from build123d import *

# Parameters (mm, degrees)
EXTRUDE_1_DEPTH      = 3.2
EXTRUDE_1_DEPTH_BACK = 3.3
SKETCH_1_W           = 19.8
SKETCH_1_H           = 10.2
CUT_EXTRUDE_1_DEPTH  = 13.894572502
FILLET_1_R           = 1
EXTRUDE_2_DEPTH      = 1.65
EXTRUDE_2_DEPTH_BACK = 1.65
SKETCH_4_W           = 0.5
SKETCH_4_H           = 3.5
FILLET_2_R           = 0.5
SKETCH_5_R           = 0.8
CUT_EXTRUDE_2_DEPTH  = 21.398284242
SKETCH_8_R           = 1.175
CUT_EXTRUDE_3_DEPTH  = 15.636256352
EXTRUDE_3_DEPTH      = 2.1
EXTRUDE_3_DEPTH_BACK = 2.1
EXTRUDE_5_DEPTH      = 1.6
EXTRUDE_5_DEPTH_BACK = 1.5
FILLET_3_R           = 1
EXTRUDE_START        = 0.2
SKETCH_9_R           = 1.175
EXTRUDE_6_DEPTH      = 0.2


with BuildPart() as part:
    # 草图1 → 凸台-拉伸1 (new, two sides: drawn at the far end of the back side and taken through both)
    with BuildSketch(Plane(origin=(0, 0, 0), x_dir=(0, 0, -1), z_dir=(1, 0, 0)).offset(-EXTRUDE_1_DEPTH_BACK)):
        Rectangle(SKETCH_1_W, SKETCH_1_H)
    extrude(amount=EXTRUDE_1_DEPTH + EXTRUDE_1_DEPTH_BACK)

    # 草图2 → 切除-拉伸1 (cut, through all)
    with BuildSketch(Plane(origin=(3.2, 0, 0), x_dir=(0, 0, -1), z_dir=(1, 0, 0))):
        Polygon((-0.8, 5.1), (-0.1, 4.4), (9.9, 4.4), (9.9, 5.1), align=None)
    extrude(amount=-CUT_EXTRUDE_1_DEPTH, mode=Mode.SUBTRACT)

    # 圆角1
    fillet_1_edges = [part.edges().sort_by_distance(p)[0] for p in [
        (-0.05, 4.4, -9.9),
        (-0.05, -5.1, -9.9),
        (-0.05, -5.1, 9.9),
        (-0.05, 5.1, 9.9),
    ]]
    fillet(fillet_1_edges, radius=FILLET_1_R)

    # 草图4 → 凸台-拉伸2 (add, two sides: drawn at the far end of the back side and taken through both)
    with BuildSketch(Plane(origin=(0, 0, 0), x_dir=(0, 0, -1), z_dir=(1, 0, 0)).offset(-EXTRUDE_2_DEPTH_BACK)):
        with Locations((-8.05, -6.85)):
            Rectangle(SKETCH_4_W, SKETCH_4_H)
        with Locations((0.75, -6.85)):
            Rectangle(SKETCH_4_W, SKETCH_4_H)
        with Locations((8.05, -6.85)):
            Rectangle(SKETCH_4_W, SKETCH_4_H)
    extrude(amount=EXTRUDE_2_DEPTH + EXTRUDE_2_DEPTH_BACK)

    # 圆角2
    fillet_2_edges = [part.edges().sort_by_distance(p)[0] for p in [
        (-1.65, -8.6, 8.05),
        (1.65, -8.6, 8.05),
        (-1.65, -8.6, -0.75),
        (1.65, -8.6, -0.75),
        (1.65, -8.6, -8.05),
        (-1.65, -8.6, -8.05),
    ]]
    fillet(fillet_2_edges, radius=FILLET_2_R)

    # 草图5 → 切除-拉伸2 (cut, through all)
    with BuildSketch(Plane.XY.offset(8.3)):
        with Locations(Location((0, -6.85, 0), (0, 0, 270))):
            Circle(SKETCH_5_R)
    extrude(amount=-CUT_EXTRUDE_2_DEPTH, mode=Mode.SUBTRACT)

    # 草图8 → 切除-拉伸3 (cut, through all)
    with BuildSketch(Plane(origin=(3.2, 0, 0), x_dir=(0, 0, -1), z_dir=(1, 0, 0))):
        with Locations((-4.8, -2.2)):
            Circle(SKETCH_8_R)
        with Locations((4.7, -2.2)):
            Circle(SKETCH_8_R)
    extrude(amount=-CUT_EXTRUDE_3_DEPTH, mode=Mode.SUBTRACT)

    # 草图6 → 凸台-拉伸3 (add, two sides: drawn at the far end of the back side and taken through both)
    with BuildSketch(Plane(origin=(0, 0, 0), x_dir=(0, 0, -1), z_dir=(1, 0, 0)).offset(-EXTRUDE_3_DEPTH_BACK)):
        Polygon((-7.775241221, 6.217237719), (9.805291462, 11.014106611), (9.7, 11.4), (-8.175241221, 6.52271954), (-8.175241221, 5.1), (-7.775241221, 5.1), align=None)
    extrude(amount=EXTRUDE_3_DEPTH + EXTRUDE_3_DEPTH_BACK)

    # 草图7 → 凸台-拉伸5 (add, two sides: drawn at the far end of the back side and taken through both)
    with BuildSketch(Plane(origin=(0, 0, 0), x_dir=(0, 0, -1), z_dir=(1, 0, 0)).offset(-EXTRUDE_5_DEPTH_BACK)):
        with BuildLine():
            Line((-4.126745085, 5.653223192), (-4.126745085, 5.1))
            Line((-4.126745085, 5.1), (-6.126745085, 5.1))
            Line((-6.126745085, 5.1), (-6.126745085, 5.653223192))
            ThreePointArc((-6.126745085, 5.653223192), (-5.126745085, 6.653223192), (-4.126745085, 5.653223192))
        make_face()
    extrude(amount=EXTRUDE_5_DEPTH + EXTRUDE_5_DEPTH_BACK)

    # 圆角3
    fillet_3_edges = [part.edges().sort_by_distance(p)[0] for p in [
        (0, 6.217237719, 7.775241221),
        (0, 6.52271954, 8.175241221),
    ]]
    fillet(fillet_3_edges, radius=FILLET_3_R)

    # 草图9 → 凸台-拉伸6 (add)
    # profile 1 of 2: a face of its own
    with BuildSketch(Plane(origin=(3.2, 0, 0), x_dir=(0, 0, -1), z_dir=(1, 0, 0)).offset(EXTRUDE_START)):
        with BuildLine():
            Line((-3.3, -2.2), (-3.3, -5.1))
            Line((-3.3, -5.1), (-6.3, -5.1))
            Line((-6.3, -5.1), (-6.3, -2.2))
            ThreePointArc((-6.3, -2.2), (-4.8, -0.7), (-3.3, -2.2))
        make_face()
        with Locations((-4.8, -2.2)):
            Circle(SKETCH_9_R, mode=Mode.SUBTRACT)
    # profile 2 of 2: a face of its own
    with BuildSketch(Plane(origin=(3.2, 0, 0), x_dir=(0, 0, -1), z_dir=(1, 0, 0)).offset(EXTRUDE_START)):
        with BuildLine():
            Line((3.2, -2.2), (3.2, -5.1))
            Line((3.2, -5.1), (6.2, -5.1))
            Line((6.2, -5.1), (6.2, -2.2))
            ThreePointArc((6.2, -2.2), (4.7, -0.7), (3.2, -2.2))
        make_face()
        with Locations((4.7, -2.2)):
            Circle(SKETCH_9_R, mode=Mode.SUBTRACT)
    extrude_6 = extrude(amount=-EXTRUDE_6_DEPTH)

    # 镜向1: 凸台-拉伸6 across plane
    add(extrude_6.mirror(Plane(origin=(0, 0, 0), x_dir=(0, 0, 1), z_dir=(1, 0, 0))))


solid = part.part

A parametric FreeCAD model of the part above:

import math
import FreeCAD as App
import Part
import Sketcher
from FreeCAD import Vector
Q = App.Units.Quantity


def edges_at(feature, points):
    """Names of the edges that pass closest to the given points."""
    edges = feature.Shape.Edges
    near = lambda p: min(range(len(edges)), key=lambda i: edges[i].distToShape(Part.Vertex(*p))[0])
    return sorted({f"Edge{near(p) + 1}" for p in points})


def add_polygon(sketch, points):
    """Adds a closed chain of lines whose ends are joined by coincident constraints."""
    first, n = sketch.GeometryCount, len(points)
    for a, b in zip(points, points[1:] + points[:1]):
        sketch.addGeometry(Part.LineSegment(App.Vector(*a, 0), App.Vector(*b, 0)), False)
    for i in range(n):
        sketch.addConstraint(Sketcher.Constraint("Coincident", first + i, 2, first + (i + 1) % n, 1))

doc = App.newDocument("Part")
body = doc.addObject("PartDesign::Body", "Body")

# Sketch on YZ plane
sketch1 = body.newObject("Sketcher::SketchObject", "Sketch")
sketch1.AttachmentSupport = (doc.getObject("YZ_Plane"), [""])
sketch1.MapMode = "FlatFace"
add_polygon(sketch1, [(5, 10), (-5, 10), (-5, -10), (5, -10)])  # lines 0-3
sketch1.addConstraint([
    Sketcher.Constraint("Horizontal", 0),
    Sketcher.Constraint("Vertical", 1),
    Sketcher.Constraint("Horizontal", 2),
    Sketcher.Constraint("Vertical", 3),
    Sketcher.Constraint("Symmetric", 0, 2, 2, 2, -1, 1),
    Sketcher.Constraint("DistanceX", 0, 2, 0, 1, Q("10.2 mm")),
    Sketcher.Constraint("DistanceY", 1, 2, 1, 1, Q("19.8 mm")),
])
pad1 = body.newObject("PartDesign::Pad", "Pad")
pad1.Profile = sketch1
pad1.Type = "TwoLengths"
pad1.Length = 3.2
pad1.Length2 = 3.3

# Sketch on YZ plane
sketch2 = body.newObject("Sketcher::SketchObject", "Sketch001")
sketch2.AttachmentSupport = (doc.getObject("YZ_Plane"), [""])
sketch2.MapMode = "FlatFace"
sketch2.AttachmentOffset = App.Placement(Vector(0, 0, 3.2), App.Rotation())
add_polygon(sketch2, [(5.1, 0.8), (4.4, 0.1), (4.4, -9.9), (5.1, -9.9)])  # lines 0-3
sketch2.addConstraint([
    Sketcher.Constraint("Vertical", 1),
    Sketcher.Constraint("Horizontal", 2),
    Sketcher.Constraint("Vertical", 3),
    Sketcher.Constraint("DistanceY", 1, 2, 1, 1, Q("10 mm")),
    Sketcher.Constraint("Angle", 0, Q("-135 deg")),
    Sketcher.Constraint("DistanceX", 2, 1, 2, 2, Q("0.7 mm")),
    Sketcher.Constraint("DistanceX", -1, 1, 0, 2, Q("4.4 mm")),
    Sketcher.Constraint("DistanceY", -1, 1, 0, 2, Q("0.1 mm")),
])
pocket1 = body.newObject("PartDesign::Pocket", "Pocket")
pocket1.Profile = sketch2
pocket1.Type = "ThroughAll"
doc.recompute()

fillet = body.newObject("PartDesign::Fillet", "Fillet")
fillet.Base = (pocket1, edges_at(pocket1, [
    (-0.05, 4.4, -9.9),
    (-0.05, -5.1, -9.9),
    (-0.05, -5.1, 9.9),
    (-0.05, 5.1, 9.9),
]))
fillet.Radius = 1

# Sketch on YZ plane
sketch3 = body.newObject("Sketcher::SketchObject", "Sketch002")
sketch3.AttachmentSupport = (doc.getObject("YZ_Plane"), [""])
sketch3.MapMode = "FlatFace"
add_polygon(sketch3, [(-5.1, 8.3), (-8.6, 8.3), (-8.6, 7.8), (-5.1, 7.8)])  # lines 0-3
add_polygon(sketch3, [(-5.1, -0.5), (-8.6, -0.5), (-8.6, -1), (-5.1, -1)])  # lines 4-7
add_polygon(sketch3, [(-5.1, -7.8), (-8.6, -7.8), (-8.6, -8.3), (-5.1, -8.3)])  # lines 8-11
sketch3.addConstraint([
    Sketcher.Constraint("Horizontal", 0),
    Sketcher.Constraint("Vertical", 1),
    Sketcher.Constraint("Horizontal", 2),
    Sketcher.Constraint("Vertical", 3),
    Sketcher.Constraint("Horizontal", 4),
    Sketcher.Constraint("Vertical", 5),
    Sketcher.Constraint("Horizontal", 6),
    Sketcher.Constraint("Vertical", 7),
    Sketcher.Constraint("Horizontal", 8),
    Sketcher.Constraint("Vertical", 9),
    Sketcher.Constraint("Horizontal", 10),
    Sketcher.Constraint("Vertical", 11),
    Sketcher.Constraint("Symmetric", 1, 2, 8, 2, -1),
    Sketcher.Constraint("Symmetric", 3, 2, 10, 2, -1),
    Sketcher.Constraint("Vertical", 1, 2, 4, 2),
    Sketcher.Constraint("Vertical", 3, 2, 6, 2),
    Sketcher.Constraint("Equal", 3, 5),
    Sketcher.Constraint("DistanceX", 0, 2, 0, 1, Q("3.5 mm")),
    Sketcher.Constraint("DistanceY", 1, 2, 1, 1, Q("0.5 mm")),
    Sketcher.Constraint("DistanceY", 5, 2, -1, 1, Q("1 mm")),
    Sketcher.Constraint("DistanceX", 0, 2, -1, 1, Q("8.6 mm")),
    Sketcher.Constraint("DistanceY", -1, 1, 0, 2, Q("8.3 mm")),
])
pad2 = body.newObject("PartDesign::Pad", "Pad001")
pad2.Profile = sketch3
pad2.Type = "TwoLengths"
pad2.Length = 1.65
pad2.Length2 = 1.65
doc.recompute()

fillet2 = body.newObject("PartDesign::Fillet", "Fillet001")
fillet2.Base = (pad2, edges_at(pad2, [
    (-1.65, -8.6, 8.05),
    (1.65, -8.6, 8.05),
    (-1.65, -8.6, -0.75),
    (1.65, -8.6, -0.75),
    (1.65, -8.6, -8.05),
    (-1.65, -8.6, -8.05),
]))
fillet2.Radius = 0.5

# Sketch on XY plane
sketch4 = body.newObject("Sketcher::SketchObject", "Sketch003")
sketch4.AttachmentSupport = (doc.getObject("XY_Plane"), [""])
sketch4.MapMode = "FlatFace"
sketch4.AttachmentOffset = App.Placement(Vector(0, 0, 8.3), App.Rotation())
sketch4.addGeometry(Part.Circle(Vector(0, -6.8, 0), Vector(0, 0, 1), 0.8), False)
sketch4.addConstraint([
    Sketcher.Constraint("PointOnObject", 0, 3, -2),
    Sketcher.Constraint("Diameter", 0, Q("1.6 mm")),
    Sketcher.Constraint("DistanceY", 0, 3, -1, 1, Q("6.85 mm")),
])
pocket2 = body.newObject("PartDesign::Pocket", "Pocket001")
pocket2.Profile = sketch4
pocket2.Type = "ThroughAll"

# Sketch on YZ plane
sketch5 = body.newObject("Sketcher::SketchObject", "Sketch004")
sketch5.AttachmentSupport = (doc.getObject("YZ_Plane"), [""])
sketch5.MapMode = "FlatFace"
sketch5.AttachmentOffset = App.Placement(Vector(0, 0, 3.2), App.Rotation())
sketch5.addGeometry([
    Part.Circle(Vector(-2.2, 4.8, 0), Vector(0, 0, 1), 1.2),
    Part.Circle(Vector(-2.2, -4.7, 0), Vector(0, 0, 1), 1.2),
], False)
sketch5.addConstraint([
    Sketcher.Constraint("Equal", 0, 1),
    Sketcher.Constraint("Vertical", 0, 3, 1, 3),
    Sketcher.Constraint("Diameter", 0, Q("2.35 mm")),
    Sketcher.Constraint("DistanceX", 0, 3, -1, 1, Q("2.2 mm")),
    Sketcher.Constraint("DistanceY", -1, 1, 0, 3, Q("4.8 mm")),
    Sketcher.Constraint("DistanceY", 1, 3, -1, 1, Q("4.7 mm")),
])
pocket3 = body.newObject("PartDesign::Pocket", "Pocket002")
pocket3.Profile = sketch5
pocket3.Type = "ThroughAll"

# Sketch on YZ plane
sketch6 = body.newObject("Sketcher::SketchObject", "Sketch005")
sketch6.AttachmentSupport = (doc.getObject("YZ_Plane"), [""])
sketch6.MapMode = "FlatFace"
add_polygon(sketch6, [(6.22, 7.78), (11.01, -9.81), (11.4, -9.7), (6.52, 8.18), (5.1, 8.18), (5.1, 7.78)])  # lines 0-5
sketch6.addConstraint([
    Sketcher.Constraint("Horizontal", 3),
    Sketcher.Constraint("Vertical", 4),
    Sketcher.Constraint("Horizontal", 5),
    Sketcher.Constraint("Perpendicular", 0, 1),
    Sketcher.Constraint("Perpendicular", 1, 2),
    Sketcher.Constraint("DistanceY", 4, 2, 4, 1, Q("0.4 mm")),
    Sketcher.Constraint("Distance", 1, Q("0.4 mm")),
    Sketcher.Constraint("DistanceX", -1, 1, 1, 2, Q("11.4 mm")),
    Sketcher.Constraint("DistanceY", 1, 2, -1, 1, Q("9.7 mm")),
    Sketcher.Constraint("DistanceX", -1, 1, 3, 2, Q("5.1 mm")),
    Sketcher.Constraint("Distance", 0, Q("18.223202 mm")),
    Sketcher.Constraint("DistanceX", 3, 2, 3, 1, Q("1.42272 mm")),
])
pad3 = body.newObject("PartDesign::Pad", "Pad002")
pad3.Profile = sketch6
pad3.Type = "TwoLengths"
pad3.Length = 2.1
pad3.Length2 = 2.1

# Sketch on YZ plane
sketch7 = body.newObject("Sketcher::SketchObject", "Sketch006")
sketch7.AttachmentSupport = (doc.getObject("YZ_Plane"), [""])
sketch7.MapMode = "FlatFace"
sketch7.addGeometry([
    Part.LineSegment(Vector(5.1, 4.1, 0), Vector(5.7, 4.1, 0)),
    Part.ArcOfCircle(Part.Circle(Vector(5.7, 5.1, 0), Vector(0, 0, 1), 1), math.radians(-90), math.radians(90)),
    Part.LineSegment(Vector(5.7, 6.1, 0), Vector(5.1, 6.1, 0)),
    Part.LineSegment(Vector(5.1, 6.1, 0), Vector(5.1, 4.1, 0)),
], False)
sketch7.addConstraint([
    Sketcher.Constraint("Tangent", 0, 2, 1, 1),
    Sketcher.Constraint("Tangent", 1, 2, 2, 1),
    Sketcher.Constraint("Coincident", 2, 2, 3, 1),
    Sketcher.Constraint("Coincident", 3, 2, 0, 1),
    Sketcher.Constraint("Horizontal", 0),
    Sketcher.Constraint("Horizontal", 2),
    Sketcher.Constraint("Vertical", 3),
    Sketcher.Constraint("Radius", 1, Q("1 mm")),
    Sketcher.Constraint("DistanceX", -1, 1, 2, 2, Q("5.1 mm")),
    Sketcher.Constraint("DistanceX", 0, 1, 0, 2, Q("0.553223 mm")),
    Sketcher.Constraint("DistanceY", -1, 1, 1, 3, Q("5.126745 mm")),
])
pad4 = body.newObject("PartDesign::Pad", "Pad003")
pad4.Profile = sketch7
pad4.Type = "TwoLengths"
pad4.Length = 1.6
pad4.Length2 = 1.5
doc.recompute()

fillet3 = body.newObject("PartDesign::Fillet", "Fillet002")
fillet3.Base = (pad4, edges_at(pad4, [(0, 6.217, 7.775), (0, 6.523, 8.175)]))
fillet3.Radius = 1

# Sketch on YZ plane
sketch8 = body.newObject("Sketcher::SketchObject", "Sketch007")
sketch8.AttachmentSupport = (doc.getObject("YZ_Plane"), [""])
sketch8.MapMode = "FlatFace"
sketch8.AttachmentOffset = App.Placement(Vector(0, 0, 3.4), App.Rotation())
sketch8.addGeometry([
    Part.LineSegment(Vector(-5.1, 3.3, 0), Vector(-2.2, 3.3, 0)),  # 0
    Part.ArcOfCircle(Part.Circle(Vector(-2.2, 4.8, 0), Vector(0, 0, 1), 1.5), math.radians(-90), math.radians(90)),  # 1
    Part.LineSegment(Vector(-2.2, 6.3, 0), Vector(-5.1, 6.3, 0)),  # 2
    Part.LineSegment(Vector(-5.1, 6.3, 0), Vector(-5.1, 3.3, 0)),  # 3
    Part.Circle(Vector(-2.2, 4.8, 0), Vector(0, 0, 1), 1.2),  # 4
    Part.LineSegment(Vector(-2.2, -3.2, 0), Vector(-5.1, -3.2, 0)),  # 5
    Part.LineSegment(Vector(-5.1, -3.2, 0), Vector(-5.1, -6.2, 0)),  # 6
    Part.LineSegment(Vector(-5.1, -6.2, 0), Vector(-2.2, -6.2, 0)),  # 7
    Part.ArcOfCircle(Part.Circle(Vector(-2.2, -4.7, 0), Vector(0, 0, 1), 1.5), math.radians(-90), math.radians(90)),  # 8
    Part.Circle(Vector(-2.2, -4.7, 0), Vector(0, 0, 1), 1.2),  # 9
], False)
sketch8.addConstraint([
    Sketcher.Constraint("Tangent", 0, 2, 1, 1),
    Sketcher.Constraint("Tangent", 1, 2, 2, 1),
    Sketcher.Constraint("Coincident", 2, 2, 3, 1),
    Sketcher.Constraint("Coincident", 3, 2, 0, 1),
    Sketcher.Constraint("Coincident", 5, 2, 6, 1),
    Sketcher.Constraint("Coincident", 6, 2, 7, 1),
    Sketcher.Constraint("Tangent", 7, 2, 8, 1),
    Sketcher.Constraint("Tangent", 8, 2, 5, 1),
    Sketcher.Constraint("Horizontal", 0),
    Sketcher.Constraint("Horizontal", 2),
    Sketcher.Constraint("Vertical", 3),
    Sketcher.Constraint("Horizontal", 5),
    Sketcher.Constraint("Vertical", 6),
    Sketcher.Constraint("Horizontal", 7),
    Sketcher.Constraint("Coincident", 4, 3, 1, 3),
    Sketcher.Constraint("Coincident", 9, 3, 8, 3),
    Sketcher.Constraint("Equal", 1, 8),
    Sketcher.Constraint("Equal", 4, 9),
    Sketcher.Constraint("Vertical", 4, 3, 8, 3),
    Sketcher.Constraint("Vertical", 3, 2, 5, 2),
    Sketcher.Constraint("Radius", 1, Q("1.5 mm")),
    Sketcher.Constraint("Diameter", 4, Q("2.35 mm")),
    Sketcher.Constraint("DistanceX", 0, 1, 0, 2, Q("2.9 mm")),
    Sketcher.Constraint("DistanceY", 8, 3, 0, 2, Q("8 mm")),
    Sketcher.Constraint("DistanceX", 1, 3, -1, 1, Q("2.2 mm")),
    Sketcher.Constraint("DistanceY", -1, 1, 1, 3, Q("4.8 mm")),
])
pad5 = body.newObject("PartDesign::Pad", "Pad004")
pad5.Profile = sketch8
pad5.Length = 0.2
pad5.Reversed = True
doc.recompute()

mirrored = body.newObject("PartDesign::Mirrored", "Mirrored")
mirrored.Originals = [pad5]
mirrored.MirrorPlane = (doc.getObject("YZ_Plane"), [""])
body.Tip = mirrored

doc.recompute()
